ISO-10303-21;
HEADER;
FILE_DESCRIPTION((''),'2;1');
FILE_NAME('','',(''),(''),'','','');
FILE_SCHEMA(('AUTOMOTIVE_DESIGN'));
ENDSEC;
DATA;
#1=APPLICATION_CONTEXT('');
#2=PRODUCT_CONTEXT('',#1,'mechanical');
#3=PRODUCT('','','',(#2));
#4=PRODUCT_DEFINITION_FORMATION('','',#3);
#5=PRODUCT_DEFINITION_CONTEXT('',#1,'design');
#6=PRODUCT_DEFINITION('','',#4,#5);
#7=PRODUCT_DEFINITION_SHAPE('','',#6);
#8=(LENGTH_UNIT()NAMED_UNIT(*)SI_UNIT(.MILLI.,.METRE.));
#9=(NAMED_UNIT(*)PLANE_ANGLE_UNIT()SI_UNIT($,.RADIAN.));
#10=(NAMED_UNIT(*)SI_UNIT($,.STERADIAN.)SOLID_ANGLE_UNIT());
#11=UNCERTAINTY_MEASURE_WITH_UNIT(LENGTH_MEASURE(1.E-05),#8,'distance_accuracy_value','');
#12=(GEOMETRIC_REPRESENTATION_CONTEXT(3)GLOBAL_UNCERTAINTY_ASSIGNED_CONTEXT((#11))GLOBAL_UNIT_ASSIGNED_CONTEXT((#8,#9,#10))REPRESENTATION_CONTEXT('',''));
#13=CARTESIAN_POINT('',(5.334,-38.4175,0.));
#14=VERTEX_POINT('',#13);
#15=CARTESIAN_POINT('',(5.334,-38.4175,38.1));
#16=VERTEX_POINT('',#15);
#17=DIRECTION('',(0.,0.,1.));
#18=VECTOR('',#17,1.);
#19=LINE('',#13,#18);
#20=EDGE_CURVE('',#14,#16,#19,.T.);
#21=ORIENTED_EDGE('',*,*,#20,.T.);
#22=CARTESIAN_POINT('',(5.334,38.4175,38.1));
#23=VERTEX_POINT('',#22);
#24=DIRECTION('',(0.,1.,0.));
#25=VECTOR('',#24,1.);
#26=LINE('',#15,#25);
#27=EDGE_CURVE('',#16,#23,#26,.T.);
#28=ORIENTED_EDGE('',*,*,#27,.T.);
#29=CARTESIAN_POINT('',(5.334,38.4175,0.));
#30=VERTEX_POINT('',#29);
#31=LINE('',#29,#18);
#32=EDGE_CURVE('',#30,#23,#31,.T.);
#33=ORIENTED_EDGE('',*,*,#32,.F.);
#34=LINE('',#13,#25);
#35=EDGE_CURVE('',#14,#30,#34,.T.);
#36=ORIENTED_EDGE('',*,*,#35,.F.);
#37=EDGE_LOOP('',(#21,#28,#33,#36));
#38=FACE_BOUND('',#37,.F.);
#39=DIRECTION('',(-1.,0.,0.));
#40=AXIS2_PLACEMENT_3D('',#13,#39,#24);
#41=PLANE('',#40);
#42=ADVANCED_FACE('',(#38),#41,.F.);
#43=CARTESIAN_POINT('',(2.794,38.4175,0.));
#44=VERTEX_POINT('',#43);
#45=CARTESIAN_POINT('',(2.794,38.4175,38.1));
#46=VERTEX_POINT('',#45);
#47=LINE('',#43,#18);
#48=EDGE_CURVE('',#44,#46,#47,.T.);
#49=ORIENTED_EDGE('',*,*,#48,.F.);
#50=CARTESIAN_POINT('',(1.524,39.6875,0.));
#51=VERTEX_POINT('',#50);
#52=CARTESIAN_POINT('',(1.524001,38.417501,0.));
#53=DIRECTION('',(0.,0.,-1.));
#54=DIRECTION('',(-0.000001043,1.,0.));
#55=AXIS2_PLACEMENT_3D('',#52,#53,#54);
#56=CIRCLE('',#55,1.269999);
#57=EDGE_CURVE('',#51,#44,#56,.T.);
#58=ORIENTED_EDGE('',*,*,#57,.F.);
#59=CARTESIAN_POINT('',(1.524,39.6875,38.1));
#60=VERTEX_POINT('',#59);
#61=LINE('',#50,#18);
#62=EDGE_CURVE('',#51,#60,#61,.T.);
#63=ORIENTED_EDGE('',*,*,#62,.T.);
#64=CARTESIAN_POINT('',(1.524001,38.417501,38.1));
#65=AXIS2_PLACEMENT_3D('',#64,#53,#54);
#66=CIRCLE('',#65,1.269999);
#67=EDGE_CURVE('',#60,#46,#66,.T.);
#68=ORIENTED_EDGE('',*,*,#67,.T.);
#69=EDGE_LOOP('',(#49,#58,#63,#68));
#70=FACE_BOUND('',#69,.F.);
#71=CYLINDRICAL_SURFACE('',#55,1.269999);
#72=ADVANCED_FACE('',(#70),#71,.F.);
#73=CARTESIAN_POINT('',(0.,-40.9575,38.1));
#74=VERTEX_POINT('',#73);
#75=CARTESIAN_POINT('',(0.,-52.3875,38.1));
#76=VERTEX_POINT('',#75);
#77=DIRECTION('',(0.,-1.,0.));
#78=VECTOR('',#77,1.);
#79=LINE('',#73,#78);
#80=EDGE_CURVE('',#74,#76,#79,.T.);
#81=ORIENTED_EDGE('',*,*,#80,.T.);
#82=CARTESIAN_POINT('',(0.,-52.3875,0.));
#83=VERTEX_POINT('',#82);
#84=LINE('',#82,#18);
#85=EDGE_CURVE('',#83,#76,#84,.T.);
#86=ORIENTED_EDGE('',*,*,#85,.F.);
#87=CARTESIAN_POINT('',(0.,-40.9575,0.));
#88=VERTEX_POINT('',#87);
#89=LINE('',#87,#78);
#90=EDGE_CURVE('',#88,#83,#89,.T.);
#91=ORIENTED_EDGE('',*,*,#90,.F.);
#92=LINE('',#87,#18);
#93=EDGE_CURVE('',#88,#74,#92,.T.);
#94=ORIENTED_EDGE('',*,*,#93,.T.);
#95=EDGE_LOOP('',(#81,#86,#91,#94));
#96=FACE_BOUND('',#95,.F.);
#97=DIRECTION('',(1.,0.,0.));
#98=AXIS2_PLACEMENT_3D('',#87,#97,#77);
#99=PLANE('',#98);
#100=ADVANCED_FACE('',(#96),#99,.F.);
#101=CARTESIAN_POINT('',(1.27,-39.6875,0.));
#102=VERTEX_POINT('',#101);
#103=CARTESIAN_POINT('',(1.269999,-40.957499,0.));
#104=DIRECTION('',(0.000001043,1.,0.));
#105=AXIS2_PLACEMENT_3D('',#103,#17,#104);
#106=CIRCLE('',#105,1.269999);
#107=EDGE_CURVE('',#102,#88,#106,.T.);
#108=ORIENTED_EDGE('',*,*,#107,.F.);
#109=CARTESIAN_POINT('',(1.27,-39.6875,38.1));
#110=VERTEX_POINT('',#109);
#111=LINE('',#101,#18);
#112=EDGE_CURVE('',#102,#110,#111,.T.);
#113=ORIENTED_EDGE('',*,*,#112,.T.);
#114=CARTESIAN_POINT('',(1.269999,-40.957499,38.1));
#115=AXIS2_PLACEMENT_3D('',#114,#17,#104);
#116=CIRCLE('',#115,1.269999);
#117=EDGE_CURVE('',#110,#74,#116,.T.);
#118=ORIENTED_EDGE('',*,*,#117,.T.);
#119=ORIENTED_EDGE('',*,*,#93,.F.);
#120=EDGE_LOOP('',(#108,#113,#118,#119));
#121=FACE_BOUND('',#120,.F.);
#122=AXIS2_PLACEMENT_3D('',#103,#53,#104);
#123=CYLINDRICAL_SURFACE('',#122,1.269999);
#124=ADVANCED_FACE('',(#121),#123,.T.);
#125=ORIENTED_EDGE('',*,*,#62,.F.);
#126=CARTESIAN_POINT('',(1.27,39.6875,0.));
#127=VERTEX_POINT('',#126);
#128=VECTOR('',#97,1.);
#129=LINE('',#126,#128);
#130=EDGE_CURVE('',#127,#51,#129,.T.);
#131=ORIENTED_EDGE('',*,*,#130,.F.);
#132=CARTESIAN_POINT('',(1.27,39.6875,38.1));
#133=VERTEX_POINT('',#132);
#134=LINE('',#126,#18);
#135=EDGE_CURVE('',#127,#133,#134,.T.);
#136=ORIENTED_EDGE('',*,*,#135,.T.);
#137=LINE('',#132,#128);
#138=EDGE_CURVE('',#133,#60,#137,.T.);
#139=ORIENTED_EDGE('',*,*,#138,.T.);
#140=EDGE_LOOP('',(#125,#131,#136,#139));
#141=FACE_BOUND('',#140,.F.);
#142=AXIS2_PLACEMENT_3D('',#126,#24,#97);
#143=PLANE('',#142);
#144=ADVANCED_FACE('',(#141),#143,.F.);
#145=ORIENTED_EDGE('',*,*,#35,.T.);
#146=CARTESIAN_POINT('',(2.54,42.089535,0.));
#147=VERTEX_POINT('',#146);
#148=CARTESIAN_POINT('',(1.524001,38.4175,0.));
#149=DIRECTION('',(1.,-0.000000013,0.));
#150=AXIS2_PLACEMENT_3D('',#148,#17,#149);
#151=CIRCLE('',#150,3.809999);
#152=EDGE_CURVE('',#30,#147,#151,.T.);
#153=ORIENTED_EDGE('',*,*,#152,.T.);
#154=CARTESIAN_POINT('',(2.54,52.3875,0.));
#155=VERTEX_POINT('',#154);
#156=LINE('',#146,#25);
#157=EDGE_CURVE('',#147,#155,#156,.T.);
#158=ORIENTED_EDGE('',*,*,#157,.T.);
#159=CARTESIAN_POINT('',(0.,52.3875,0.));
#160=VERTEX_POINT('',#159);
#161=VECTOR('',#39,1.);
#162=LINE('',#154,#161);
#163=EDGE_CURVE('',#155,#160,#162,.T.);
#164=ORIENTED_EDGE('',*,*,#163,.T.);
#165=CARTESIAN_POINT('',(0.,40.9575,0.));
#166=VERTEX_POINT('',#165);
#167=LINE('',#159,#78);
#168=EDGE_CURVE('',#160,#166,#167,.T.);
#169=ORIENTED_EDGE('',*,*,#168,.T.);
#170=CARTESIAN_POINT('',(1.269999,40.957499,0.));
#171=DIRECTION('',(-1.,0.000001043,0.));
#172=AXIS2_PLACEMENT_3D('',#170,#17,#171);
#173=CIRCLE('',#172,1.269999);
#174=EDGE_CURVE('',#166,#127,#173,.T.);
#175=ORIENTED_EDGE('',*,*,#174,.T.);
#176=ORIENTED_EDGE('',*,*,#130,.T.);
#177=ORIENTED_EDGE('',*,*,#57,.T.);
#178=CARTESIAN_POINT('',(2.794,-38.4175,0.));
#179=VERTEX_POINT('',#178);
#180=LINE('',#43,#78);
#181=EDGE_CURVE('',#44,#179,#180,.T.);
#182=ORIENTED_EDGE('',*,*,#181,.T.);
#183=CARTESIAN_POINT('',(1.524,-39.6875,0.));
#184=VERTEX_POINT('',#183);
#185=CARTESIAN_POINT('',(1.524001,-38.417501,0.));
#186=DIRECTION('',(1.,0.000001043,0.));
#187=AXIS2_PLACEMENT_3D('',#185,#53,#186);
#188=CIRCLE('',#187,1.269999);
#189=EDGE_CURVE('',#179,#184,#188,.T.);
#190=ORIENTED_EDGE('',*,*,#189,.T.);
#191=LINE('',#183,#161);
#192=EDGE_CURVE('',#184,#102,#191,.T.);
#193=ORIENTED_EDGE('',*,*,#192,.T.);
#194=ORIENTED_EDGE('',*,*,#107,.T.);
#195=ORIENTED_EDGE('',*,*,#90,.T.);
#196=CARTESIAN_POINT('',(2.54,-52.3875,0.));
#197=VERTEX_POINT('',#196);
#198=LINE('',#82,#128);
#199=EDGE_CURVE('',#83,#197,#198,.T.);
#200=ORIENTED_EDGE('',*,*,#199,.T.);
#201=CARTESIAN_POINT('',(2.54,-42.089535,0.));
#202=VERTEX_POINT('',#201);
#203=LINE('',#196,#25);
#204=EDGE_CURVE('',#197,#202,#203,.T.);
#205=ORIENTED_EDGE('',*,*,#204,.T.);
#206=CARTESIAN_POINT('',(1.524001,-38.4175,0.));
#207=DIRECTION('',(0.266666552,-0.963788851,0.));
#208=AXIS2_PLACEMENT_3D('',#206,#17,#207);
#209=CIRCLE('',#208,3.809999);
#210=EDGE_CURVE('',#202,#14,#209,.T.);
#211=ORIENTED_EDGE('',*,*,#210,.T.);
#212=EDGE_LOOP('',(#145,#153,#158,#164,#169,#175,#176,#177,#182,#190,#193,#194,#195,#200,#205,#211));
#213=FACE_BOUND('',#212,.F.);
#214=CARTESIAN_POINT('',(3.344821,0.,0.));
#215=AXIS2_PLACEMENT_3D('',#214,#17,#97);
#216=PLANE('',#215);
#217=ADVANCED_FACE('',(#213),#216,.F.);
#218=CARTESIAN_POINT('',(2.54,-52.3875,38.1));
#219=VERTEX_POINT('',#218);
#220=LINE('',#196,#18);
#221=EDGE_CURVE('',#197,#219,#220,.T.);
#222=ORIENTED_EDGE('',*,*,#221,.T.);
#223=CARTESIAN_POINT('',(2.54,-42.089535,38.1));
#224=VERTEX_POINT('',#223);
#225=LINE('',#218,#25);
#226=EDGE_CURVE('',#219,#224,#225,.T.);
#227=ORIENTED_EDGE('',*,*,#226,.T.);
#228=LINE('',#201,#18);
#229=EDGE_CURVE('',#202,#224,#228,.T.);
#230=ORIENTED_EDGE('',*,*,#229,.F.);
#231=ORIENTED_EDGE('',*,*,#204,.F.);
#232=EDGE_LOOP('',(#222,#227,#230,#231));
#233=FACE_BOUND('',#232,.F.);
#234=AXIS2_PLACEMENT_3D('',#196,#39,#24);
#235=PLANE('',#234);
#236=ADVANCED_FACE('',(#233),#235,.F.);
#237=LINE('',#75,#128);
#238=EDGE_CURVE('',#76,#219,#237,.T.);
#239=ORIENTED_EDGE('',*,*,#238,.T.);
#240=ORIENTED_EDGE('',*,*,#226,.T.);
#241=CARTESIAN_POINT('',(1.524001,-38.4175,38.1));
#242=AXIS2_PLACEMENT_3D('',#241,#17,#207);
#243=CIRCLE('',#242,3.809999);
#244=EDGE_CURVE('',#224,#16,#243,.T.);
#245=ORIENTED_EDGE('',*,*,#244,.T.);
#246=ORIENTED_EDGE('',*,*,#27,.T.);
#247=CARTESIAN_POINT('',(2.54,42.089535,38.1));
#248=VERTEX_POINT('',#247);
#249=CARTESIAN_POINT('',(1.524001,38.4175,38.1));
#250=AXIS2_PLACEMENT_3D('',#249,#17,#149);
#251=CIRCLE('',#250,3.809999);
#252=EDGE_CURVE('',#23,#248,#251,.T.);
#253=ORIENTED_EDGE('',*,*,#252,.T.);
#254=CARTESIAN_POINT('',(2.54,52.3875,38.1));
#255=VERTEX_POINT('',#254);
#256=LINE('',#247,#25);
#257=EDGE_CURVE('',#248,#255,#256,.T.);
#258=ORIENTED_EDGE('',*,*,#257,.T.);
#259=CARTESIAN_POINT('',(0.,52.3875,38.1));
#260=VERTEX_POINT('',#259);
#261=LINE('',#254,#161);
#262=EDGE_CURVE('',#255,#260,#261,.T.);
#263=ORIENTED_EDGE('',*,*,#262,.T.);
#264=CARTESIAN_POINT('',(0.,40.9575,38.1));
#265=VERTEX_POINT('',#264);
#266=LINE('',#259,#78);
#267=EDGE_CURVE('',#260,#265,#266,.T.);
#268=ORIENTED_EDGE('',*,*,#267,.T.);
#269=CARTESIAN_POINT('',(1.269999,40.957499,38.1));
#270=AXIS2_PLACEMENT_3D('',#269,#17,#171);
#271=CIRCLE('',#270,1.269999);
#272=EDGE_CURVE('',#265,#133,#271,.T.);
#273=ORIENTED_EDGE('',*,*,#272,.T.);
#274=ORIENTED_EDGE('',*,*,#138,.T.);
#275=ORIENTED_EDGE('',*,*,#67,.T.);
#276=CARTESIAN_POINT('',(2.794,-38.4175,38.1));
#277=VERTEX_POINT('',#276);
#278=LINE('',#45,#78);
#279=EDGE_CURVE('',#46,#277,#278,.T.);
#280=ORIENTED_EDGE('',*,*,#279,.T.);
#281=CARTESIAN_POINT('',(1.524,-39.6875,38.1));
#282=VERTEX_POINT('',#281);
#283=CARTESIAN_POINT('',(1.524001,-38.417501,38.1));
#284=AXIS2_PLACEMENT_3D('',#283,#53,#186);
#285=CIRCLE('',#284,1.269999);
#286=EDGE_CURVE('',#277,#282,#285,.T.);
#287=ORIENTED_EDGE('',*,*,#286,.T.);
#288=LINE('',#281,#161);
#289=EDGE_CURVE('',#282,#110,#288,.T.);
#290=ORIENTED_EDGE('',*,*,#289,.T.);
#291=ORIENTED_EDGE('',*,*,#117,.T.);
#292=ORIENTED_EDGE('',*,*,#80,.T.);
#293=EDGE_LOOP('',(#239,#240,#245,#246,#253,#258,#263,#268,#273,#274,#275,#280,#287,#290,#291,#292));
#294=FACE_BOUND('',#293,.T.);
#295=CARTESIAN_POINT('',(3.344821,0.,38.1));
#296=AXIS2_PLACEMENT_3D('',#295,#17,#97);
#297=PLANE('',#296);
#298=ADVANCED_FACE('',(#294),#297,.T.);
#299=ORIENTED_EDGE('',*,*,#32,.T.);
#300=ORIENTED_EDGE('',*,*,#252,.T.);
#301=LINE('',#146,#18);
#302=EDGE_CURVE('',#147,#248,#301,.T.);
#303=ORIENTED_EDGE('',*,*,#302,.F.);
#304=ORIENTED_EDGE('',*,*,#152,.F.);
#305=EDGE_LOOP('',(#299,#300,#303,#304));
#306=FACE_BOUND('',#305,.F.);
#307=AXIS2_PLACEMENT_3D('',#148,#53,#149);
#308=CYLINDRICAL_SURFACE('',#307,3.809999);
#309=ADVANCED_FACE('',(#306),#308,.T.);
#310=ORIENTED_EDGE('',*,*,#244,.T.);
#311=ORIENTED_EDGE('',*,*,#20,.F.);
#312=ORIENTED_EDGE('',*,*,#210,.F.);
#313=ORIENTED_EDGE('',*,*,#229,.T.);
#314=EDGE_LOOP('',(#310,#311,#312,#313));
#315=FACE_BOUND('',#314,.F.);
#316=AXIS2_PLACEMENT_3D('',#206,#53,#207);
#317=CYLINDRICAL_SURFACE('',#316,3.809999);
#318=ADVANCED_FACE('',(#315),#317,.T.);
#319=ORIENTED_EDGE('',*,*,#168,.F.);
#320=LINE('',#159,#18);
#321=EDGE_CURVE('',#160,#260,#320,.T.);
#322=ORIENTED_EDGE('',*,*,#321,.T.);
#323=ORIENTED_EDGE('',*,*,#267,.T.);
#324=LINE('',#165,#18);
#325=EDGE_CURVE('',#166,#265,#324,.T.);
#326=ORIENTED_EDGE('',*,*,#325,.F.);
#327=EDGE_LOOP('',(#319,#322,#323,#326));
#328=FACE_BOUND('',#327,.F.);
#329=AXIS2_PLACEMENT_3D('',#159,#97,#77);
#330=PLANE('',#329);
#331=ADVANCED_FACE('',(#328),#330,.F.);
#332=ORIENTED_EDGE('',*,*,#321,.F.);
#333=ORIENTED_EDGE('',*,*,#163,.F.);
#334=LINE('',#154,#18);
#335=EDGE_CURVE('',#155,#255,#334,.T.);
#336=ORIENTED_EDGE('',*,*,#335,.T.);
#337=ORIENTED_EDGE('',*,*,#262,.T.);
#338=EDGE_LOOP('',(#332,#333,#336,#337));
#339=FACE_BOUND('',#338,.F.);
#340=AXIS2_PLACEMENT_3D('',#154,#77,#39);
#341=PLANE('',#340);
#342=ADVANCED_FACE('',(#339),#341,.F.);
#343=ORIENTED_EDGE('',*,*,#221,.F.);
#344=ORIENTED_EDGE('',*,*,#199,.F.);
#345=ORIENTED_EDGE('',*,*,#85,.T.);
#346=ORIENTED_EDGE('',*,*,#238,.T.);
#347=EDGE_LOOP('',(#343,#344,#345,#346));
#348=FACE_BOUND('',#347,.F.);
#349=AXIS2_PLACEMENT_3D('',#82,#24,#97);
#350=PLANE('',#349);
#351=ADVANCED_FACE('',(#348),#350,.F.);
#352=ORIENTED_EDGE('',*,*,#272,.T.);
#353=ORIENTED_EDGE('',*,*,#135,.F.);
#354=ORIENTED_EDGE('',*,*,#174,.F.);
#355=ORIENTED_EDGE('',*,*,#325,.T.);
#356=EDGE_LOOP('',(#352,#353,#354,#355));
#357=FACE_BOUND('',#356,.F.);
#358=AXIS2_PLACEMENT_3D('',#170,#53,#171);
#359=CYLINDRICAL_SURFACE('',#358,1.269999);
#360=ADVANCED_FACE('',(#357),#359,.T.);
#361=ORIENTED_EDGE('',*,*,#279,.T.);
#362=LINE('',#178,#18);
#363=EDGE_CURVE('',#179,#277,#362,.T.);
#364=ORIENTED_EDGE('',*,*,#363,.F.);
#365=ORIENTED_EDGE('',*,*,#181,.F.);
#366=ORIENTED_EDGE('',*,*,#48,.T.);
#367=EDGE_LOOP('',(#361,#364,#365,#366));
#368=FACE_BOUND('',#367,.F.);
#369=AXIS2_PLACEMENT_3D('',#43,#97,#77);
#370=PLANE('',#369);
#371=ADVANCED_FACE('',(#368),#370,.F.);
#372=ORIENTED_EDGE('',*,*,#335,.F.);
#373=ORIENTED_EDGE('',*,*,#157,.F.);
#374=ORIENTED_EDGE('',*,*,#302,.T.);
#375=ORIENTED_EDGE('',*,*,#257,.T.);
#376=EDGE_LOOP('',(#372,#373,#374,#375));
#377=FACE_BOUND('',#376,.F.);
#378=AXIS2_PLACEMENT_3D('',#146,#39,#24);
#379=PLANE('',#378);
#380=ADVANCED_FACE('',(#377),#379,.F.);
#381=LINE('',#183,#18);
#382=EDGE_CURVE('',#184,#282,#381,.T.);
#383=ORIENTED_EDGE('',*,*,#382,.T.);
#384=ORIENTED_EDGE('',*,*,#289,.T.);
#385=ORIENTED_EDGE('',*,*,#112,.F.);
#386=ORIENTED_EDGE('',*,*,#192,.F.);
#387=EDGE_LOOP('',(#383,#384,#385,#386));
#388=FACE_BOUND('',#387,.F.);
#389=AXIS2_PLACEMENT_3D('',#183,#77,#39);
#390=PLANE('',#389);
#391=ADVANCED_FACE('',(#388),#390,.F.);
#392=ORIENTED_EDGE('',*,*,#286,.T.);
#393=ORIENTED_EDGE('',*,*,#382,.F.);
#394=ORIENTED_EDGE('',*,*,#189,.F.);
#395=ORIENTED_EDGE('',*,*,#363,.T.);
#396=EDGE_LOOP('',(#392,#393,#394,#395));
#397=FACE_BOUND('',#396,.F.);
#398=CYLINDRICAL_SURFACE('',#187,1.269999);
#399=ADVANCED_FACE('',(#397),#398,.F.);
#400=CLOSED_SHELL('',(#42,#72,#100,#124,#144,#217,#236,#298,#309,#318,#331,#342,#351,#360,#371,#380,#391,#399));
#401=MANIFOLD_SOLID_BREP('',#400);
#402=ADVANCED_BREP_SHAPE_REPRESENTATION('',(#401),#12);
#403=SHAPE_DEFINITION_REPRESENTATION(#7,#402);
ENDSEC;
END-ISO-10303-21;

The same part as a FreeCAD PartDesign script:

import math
import FreeCAD as App
import Part
import Sketcher
from FreeCAD import Vector
Q = App.Units.Quantity

doc = App.newDocument("Part")
body = doc.addObject("PartDesign::Body", "Body")

# Sketch on XY plane
sketch1 = body.newObject("Sketcher::SketchObject", "Sketch")
sketch1.AttachmentSupport = (doc.getObject("XY_Plane"), [""])
sketch1.MapMode = "FlatFace"
sketch1.addGeometry(Part.ArcOfCircle(Part.Circle(Vector(1.27, -40.96, 0), Vector(0, 0, 1), 1.27), math.radians(90), math.radians(180)), False)
sketch1.addGeometry(Part.LineSegment(Vector(0, -40.96, 0), Vector(0, -52.39, 0)), False)
sketch1.addGeometry(Part.LineSegment(Vector(0, -52.39, 0), Vector(2.54, -52.39, 0)), False)
sketch1.addGeometry(Part.LineSegment(Vector(2.54, -52.39, 0), Vector(2.54, -42.09, 0)), False)
sketch1.addGeometry(Part.ArcOfCircle(Part.Circle(Vector(1.52, -38.42, 0), Vector(0, 0, 1), 3.81), math.radians(-75), math.radians(0)), False)
sketch1.addGeometry(Part.LineSegment(Vector(5.33, -38.42, 0), Vector(5.33, 38.42, 0)), False)
sketch1.addGeometry(Part.ArcOfCircle(Part.Circle(Vector(1.52, 38.42, 0), Vector(0, 0, 1), 3.81), math.radians(0), math.radians(75)), False)
sketch1.addGeometry(Part.LineSegment(Vector(2.54, 42.09, 0), Vector(2.54, 52.39, 0)), False)
sketch1.addGeometry(Part.LineSegment(Vector(2.54, 52.39, 0), Vector(0, 52.39, 0)), False)
sketch1.addGeometry(Part.LineSegment(Vector(0, 52.39, 0), Vector(0, 40.96, 0)), False)
sketch1.addGeometry(Part.ArcOfCircle(Part.Circle(Vector(1.27, 40.96, 0), Vector(0, 0, 1), 1.27), math.radians(180), math.radians(270)), False)
sketch1.addGeometry(Part.LineSegment(Vector(1.27, 39.69, 0), Vector(1.52, 39.69, 0)), False)
sketch1.addGeometry(Part.ArcOfCircle(Part.Circle(Vector(1.52, 38.42, 0), Vector(0, 0, 1), 1.27), math.radians(0), math.radians(90)), False)
sketch1.addGeometry(Part.LineSegment(Vector(2.79, 38.42, 0), Vector(2.79, -38.42, 0)), False)
sketch1.addGeometry(Part.ArcOfCircle(Part.Circle(Vector(1.52, -38.42, 0), Vector(0, 0, 1), 1.27), math.radians(-90), math.radians(0)), False)
sketch1.addGeometry(Part.LineSegment(Vector(1.52, -39.69, 0), Vector(1.27, -39.69, 0)), False)
sketch1.addConstraint(Sketcher.Constraint("Tangent", 0, 2, 1, 1))
sketch1.addConstraint(Sketcher.Constraint("Coincident", 1, 2, 2, 1))
sketch1.addConstraint(Sketcher.Constraint("Coincident", 2, 2, 3, 1))
sketch1.addConstraint(Sketcher.Constraint("Coincident", 3, 2, 4, 1))
sketch1.addConstraint(Sketcher.Constraint("Tangent", 4, 2, 5, 1))
sketch1.addConstraint(Sketcher.Constraint("Tangent", 5, 2, 6, 1))
sketch1.addConstraint(Sketcher.Constraint("Coincident", 6, 2, 7, 1))
sketch1.addConstraint(Sketcher.Constraint("Coincident", 7, 2, 8, 1))
sketch1.addConstraint(Sketcher.Constraint("Coincident", 8, 2, 9, 1))
sketch1.addConstraint(Sketcher.Constraint("Tangent", 9, 2, 10, 1))
sketch1.addConstraint(Sketcher.Constraint("Tangent", 10, 2, 11, 1))
sketch1.addConstraint(Sketcher.Constraint("Tangent", 11, 2, 12, 2))
sketch1.addConstraint(Sketcher.Constraint("Tangent", 12, 1, 13, 1))
sketch1.addConstraint(Sketcher.Constraint("Tangent", 13, 2, 14, 2))
sketch1.addConstraint(Sketcher.Constraint("Tangent", 14, 1, 15, 1))
sketch1.addConstraint(Sketcher.Constraint("Tangent", 15, 2, 0, 1))
sketch1.addConstraint(Sketcher.Constraint("Vertical", 1))
sketch1.addConstraint(Sketcher.Constraint("Horizontal", 2))
sketch1.addConstraint(Sketcher.Constraint("Vertical", 3))
sketch1.addConstraint(Sketcher.Constraint("Vertical", 5))
sketch1.addConstraint(Sketcher.Constraint("Vertical", 7))
sketch1.addConstraint(Sketcher.Constraint("Horizontal", 8))
sketch1.addConstraint(Sketcher.Constraint("Vertical", 9))
sketch1.addConstraint(Sketcher.Constraint("Horizontal", 11))
sketch1.addConstraint(Sketcher.Constraint("Vertical", 13))
sketch1.addConstraint(Sketcher.Constraint("Horizontal", 15))
sketch1.addConstraint(Sketcher.Constraint("Coincident", 12, 3, 6, 3))
sketch1.addConstraint(Sketcher.Constraint("Coincident", 14, 3, 4, 3))
sketch1.addConstraint(Sketcher.Constraint("Equal", 4, 6))
sketch1.addConstraint(Sketcher.Constraint("Equal", 0, 10))
sketch1.addConstraint(Sketcher.Constraint("Equal", 10, 12))
sketch1.addConstraint(Sketcher.Constraint("Symmetric", 1, 2, 8, 2, -1, 1))
sketch1.addConstraint(Sketcher.Constraint("Symmetric", 0, 3, 10, 3, -1))
sketch1.addConstraint(Sketcher.Constraint("Vertical", 3, 2, 6, 2))
sketch1.addConstraint(Sketcher.Constraint("Radius", 0, Q("0.0499999 in")))
sketch1.addConstraint(Sketcher.Constraint("Radius", 4, Q("0.15 in")))
sketch1.addConstraint(Sketcher.Constraint("DistanceX", 2, 1, 2, 2, Q("0.1 in")))
sketch1.addConstraint(Sketcher.Constraint("DistanceX", 11, 1, 11, 2, Q("0.01 in")))
sketch1.addConstraint(Sketcher.Constraint("DistanceY", 1, 2, 1, 1, Q("0.45 in")))
sketch1.addConstraint(Sketcher.Constraint("DistanceY", 5, 1, 5, 2, Q("3.025 in")))
pad1 = body.newObject("PartDesign::Pad", "Pad")
pad1.Profile = sketch1
pad1.Length = Q("1.5 in")

doc.recompute()
